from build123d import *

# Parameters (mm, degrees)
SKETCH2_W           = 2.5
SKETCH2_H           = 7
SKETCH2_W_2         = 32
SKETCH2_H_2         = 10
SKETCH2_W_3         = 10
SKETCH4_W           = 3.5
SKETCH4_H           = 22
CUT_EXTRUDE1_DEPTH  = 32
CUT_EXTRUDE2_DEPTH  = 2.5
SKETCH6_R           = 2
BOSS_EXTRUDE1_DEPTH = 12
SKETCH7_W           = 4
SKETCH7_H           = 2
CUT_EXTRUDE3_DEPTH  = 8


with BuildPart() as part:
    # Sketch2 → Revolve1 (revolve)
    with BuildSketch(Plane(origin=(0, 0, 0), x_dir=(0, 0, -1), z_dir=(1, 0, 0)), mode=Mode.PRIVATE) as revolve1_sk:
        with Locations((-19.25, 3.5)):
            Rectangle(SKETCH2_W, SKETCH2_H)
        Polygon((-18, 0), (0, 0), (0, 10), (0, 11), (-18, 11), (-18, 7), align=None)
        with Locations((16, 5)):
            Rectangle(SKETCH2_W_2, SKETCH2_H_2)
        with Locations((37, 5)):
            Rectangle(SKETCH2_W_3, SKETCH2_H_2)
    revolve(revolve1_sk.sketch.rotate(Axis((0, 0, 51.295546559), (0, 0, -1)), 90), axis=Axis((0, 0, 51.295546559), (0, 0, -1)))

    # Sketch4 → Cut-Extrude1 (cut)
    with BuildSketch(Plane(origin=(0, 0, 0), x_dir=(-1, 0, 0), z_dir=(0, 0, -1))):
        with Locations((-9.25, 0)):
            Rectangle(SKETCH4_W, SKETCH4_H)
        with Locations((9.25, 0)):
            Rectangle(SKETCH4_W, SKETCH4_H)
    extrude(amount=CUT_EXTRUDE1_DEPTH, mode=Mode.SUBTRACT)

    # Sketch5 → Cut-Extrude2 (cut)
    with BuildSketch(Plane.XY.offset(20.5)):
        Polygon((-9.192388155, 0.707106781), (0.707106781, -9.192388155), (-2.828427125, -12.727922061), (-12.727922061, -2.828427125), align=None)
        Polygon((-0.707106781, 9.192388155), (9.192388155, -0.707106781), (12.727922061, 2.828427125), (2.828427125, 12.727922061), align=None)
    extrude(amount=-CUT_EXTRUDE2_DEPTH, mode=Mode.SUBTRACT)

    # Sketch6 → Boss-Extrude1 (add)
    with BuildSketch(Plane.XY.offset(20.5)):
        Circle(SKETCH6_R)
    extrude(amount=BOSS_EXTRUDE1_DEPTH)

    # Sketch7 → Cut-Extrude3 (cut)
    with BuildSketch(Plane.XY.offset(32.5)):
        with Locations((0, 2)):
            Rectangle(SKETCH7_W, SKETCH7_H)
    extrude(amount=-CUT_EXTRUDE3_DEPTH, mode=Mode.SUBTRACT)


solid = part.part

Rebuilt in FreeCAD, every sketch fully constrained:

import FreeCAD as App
import Part
import Sketcher
Q = App.Units.Quantity

doc = App.newDocument("Part")
body = doc.addObject("PartDesign::Body", "Body")

sketch1 = body.newObject("Sketcher::SketchObject", "Sketch")
sketch1.AttachmentSupport = (doc.getObject("YZ_Plane"), [""])
sketch1.MapMode = "FlatFace"
sketch1.addGeometry([
    Part.LineSegment(App.Vector(7, 20.5, 0), App.Vector(0, 20.5, 0)),
    Part.LineSegment(App.Vector(0, 20.5, 0), App.Vector(0, -42, 0)),
    Part.LineSegment(App.Vector(0, -42, 0), App.Vector(10, -42, 0)),
    Part.LineSegment(App.Vector(10, -42, 0), App.Vector(10, 0, 0)),
    Part.LineSegment(App.Vector(10, 0, 0), App.Vector(11, 0, 0)),
    Part.LineSegment(App.Vector(11, 0, 0), App.Vector(11, 18, 0)),
    Part.LineSegment(App.Vector(11, 18, 0), App.Vector(7, 18, 0)),
    Part.LineSegment(App.Vector(7, 18, 0), App.Vector(7, 20.5, 0)),
], False)
sketch1.addConstraint([
    Sketcher.Constraint("Coincident", 0, 2, 1, 1),
    Sketcher.Constraint("Coincident", 1, 2, 2, 1),
    Sketcher.Constraint("Coincident", 2, 2, 3, 1),
    Sketcher.Constraint("Coincident", 3, 2, 4, 1),
    Sketcher.Constraint("Coincident", 4, 2, 5, 1),
    Sketcher.Constraint("Coincident", 5, 2, 6, 1),
    Sketcher.Constraint("Coincident", 6, 2, 7, 1),
    Sketcher.Constraint("Coincident", 7, 2, 0, 1),
    Sketcher.Constraint("Horizontal", 0),
    Sketcher.Constraint("Vertical", 1),
    Sketcher.Constraint("Horizontal", 2),
    Sketcher.Constraint("Vertical", 3),
    Sketcher.Constraint("Horizontal", 4),
    Sketcher.Constraint("Vertical", 5),
    Sketcher.Constraint("Horizontal", 6),
    Sketcher.Constraint("Vertical", 7),
    Sketcher.Constraint("PointOnObject", 0, 2, -2),
    Sketcher.Constraint("PointOnObject", 3, 2, -1),
    Sketcher.Constraint("DistanceX", 0, 2, 0, 1, Q("7 mm")),
    Sketcher.Constraint("DistanceX", 2, 1, 2, 2, Q("10 mm")),
    Sketcher.Constraint("DistanceX", 4, 1, 4, 2, Q("1 mm")),
    Sketcher.Constraint("DistanceY", 3, 1, 3, 2, Q("42 mm")),
    Sketcher.Constraint("DistanceY", 5, 1, 5, 2, Q("18 mm")),
    Sketcher.Constraint("DistanceY", 1, 2, 1, 1, Q("62.5 mm")),
])
revolution = body.newObject("PartDesign::Revolution", "Revolution")
revolution.Profile = sketch1
revolution.ReferenceAxis = (sketch1, ["V_Axis"])
revolution.Angle = 360

sketch2 = body.newObject("Sketcher::SketchObject", "Sketch001")
sketch2.AttachmentSupport = (doc.getObject("XY_Plane"), [""])
sketch2.MapMode = "FlatFace"
sketch2.addGeometry([
    Part.LineSegment(App.Vector(11, 11, 0), App.Vector(11, -11, 0)),
    Part.LineSegment(App.Vector(11, -11, 0), App.Vector(7.5, -11, 0)),
    Part.LineSegment(App.Vector(7.5, -11, 0), App.Vector(7.5, 11, 0)),
    Part.LineSegment(App.Vector(7.5, 11, 0), App.Vector(11, 11, 0)),
    Part.LineSegment(App.Vector(-7.5, 11, 0), App.Vector(-7.5, -11, 0)),
    Part.LineSegment(App.Vector(-7.5, -11, 0), App.Vector(-11, -11, 0)),
    Part.LineSegment(App.Vector(-11, -11, 0), App.Vector(-11, 11, 0)),
    Part.LineSegment(App.Vector(-11, 11, 0), App.Vector(-7.5, 11, 0)),
], False)
sketch2.addConstraint([
    Sketcher.Constraint("Coincident", 0, 2, 1, 1),
    Sketcher.Constraint("Coincident", 1, 2, 2, 1),
    Sketcher.Constraint("Coincident", 2, 2, 3, 1),
    Sketcher.Constraint("Coincident", 3, 2, 0, 1),
    Sketcher.Constraint("Coincident", 4, 2, 5, 1),
    Sketcher.Constraint("Coincident", 5, 2, 6, 1),
    Sketcher.Constraint("Coincident", 6, 2, 7, 1),
    Sketcher.Constraint("Coincident", 7, 2, 4, 1),
    Sketcher.Constraint("Vertical", 0),
    Sketcher.Constraint("Horizontal", 1),
    Sketcher.Constraint("Vertical", 2),
    Sketcher.Constraint("Horizontal", 3),
    Sketcher.Constraint("Vertical", 4),
    Sketcher.Constraint("Horizontal", 5),
    Sketcher.Constraint("Vertical", 6),
    Sketcher.Constraint("Horizontal", 7),
    Sketcher.Constraint("Symmetric", 2, 2, 4, 2, -1, 1),
    Sketcher.Constraint("Symmetric", 0, 2, 6, 2, -1, 1),
    Sketcher.Constraint("Horizontal", 1, 2, 4, 2),
    Sketcher.Constraint("DistanceY", 0, 2, 0, 1, Q("22 mm")),
    Sketcher.Constraint("DistanceX", 1, 2, 1, 1, Q("3.5 mm")),
    Sketcher.Constraint("DistanceX", -1, 1, 0, 2, Q("11 mm")),
])
pocket1 = body.newObject("PartDesign::Pocket", "Pocket")
pocket1.Profile = sketch2
pocket1.Length = 32

sketch3 = body.newObject("Sketcher::SketchObject", "Sketch002")
sketch3.AttachmentSupport = (doc.getObject("XY_Plane"), [""])
sketch3.MapMode = "FlatFace"
sketch3.AttachmentOffset = App.Placement(App.Vector(0, 0, 20.5), App.Rotation())
sketch3.addGeometry([
    Part.LineSegment(App.Vector(1, -9, 0), App.Vector(-9, 1, 0)),
    Part.LineSegment(App.Vector(-9, 1, 0), App.Vector(-13, -3, 0)),
    Part.LineSegment(App.Vector(-13, -3, 0), App.Vector(-3, -13, 0)),
    Part.LineSegment(App.Vector(-3, -13, 0), App.Vector(1, -9, 0)),
    Part.LineSegment(App.Vector(-1, 9, 0), App.Vector(9, -1, 0)),
    Part.LineSegment(App.Vector(9, -1, 0), App.Vector(13, 3, 0)),
    Part.LineSegment(App.Vector(13, 3, 0), App.Vector(3, 13, 0)),
    Part.LineSegment(App.Vector(3, 13, 0), App.Vector(-1, 9, 0)),
], False)
sketch3.addConstraint([
    Sketcher.Constraint("Coincident", 0, 2, 1, 1),
    Sketcher.Constraint("Coincident", 1, 2, 2, 1),
    Sketcher.Constraint("Coincident", 2, 2, 3, 1),
    Sketcher.Constraint("Coincident", 3, 2, 0, 1),
    Sketcher.Constraint("Coincident", 4, 2, 5, 1),
    Sketcher.Constraint("Coincident", 5, 2, 6, 1),
    Sketcher.Constraint("Coincident", 6, 2, 7, 1),
    Sketcher.Constraint("Coincident", 7, 2, 4, 1),
    Sketcher.Constraint("Symmetric", 0, 2, 4, 2, -1, 1),
    Sketcher.Constraint("Symmetric", 1, 2, 5, 2, -1, 1),
    Sketcher.Constraint("Symmetric", 2, 2, 6, 2, -1, 1),
    Sketcher.Constraint("Symmetric", 3, 2, 7, 2, -1, 1),
    Sketcher.Constraint("Perpendicular", 0, 1),
    Sketcher.Constraint("Perpendicular", 1, 2),
    Sketcher.Constraint("Perpendicular", 2, 3),
    Sketcher.Constraint("Angle", 0, Q("135 deg")),
    Sketcher.Constraint("Distance", 0, Q("14 mm")),
    Sketcher.Constraint("Distance", 1, Q("5 mm")),
    Sketcher.Constraint("DistanceX", 0, 2, -1, 1, Q("9.192388 mm")),
    Sketcher.Constraint("DistanceY", 3, 2, -1, 1, Q("9.192388 mm")),
])
pocket2 = body.newObject("PartDesign::Pocket", "Pocket001")
pocket2.Profile = sketch3
pocket2.Length = 2.5

sketch4 = body.newObject("Sketcher::SketchObject", "Sketch003")
sketch4.AttachmentSupport = (doc.getObject("XY_Plane"), [""])
sketch4.MapMode = "FlatFace"
sketch4.AttachmentOffset = App.Placement(App.Vector(0, 0, 20.5), App.Rotation())
sketch4.addGeometry(Part.Circle(App.Vector(0, 0, 0), App.Vector(0, 0, 1), 2), False)
sketch4.addConstraint([
    Sketcher.Constraint("Coincident", 0, 3, -1, 1),
    Sketcher.Constraint("Diameter", 0, Q("4 mm")),
])
pad1 = body.newObject("PartDesign::Pad", "Pad")
pad1.Profile = sketch4
pad1.Length = 12

sketch5 = body.newObject("Sketcher::SketchObject", "Sketch004")
sketch5.AttachmentSupport = (doc.getObject("XY_Plane"), [""])
sketch5.MapMode = "FlatFace"
sketch5.AttachmentOffset = App.Placement(App.Vector(0, 0, 32.5), App.Rotation())
sketch5.addGeometry([
    Part.LineSegment(App.Vector(-2, 3, 0), App.Vector(-2, 1, 0)),
    Part.LineSegment(App.Vector(-2, 1, 0), App.Vector(2, 1, 0)),
    Part.LineSegment(App.Vector(2, 1, 0), App.Vector(2, 3, 0)),
    Part.LineSegment(App.Vector(2, 3, 0), App.Vector(-2, 3, 0)),
], False)
sketch5.addConstraint([
    Sketcher.Constraint("Coincident", 0, 2, 1, 1),
    Sketcher.Constraint("Coincident", 1, 2, 2, 1),
    Sketcher.Constraint("Coincident", 2, 2, 3, 1),
    Sketcher.Constraint("Coincident", 3, 2, 0, 1),
    Sketcher.Constraint("Vertical", 0),
    Sketcher.Constraint("Horizontal", 1),
    Sketcher.Constraint("Vertical", 2),
    Sketcher.Constraint("Horizontal", 3),
    Sketcher.Constraint("DistanceX", 1, 1, 1, 2, Q("4 mm")),
    Sketcher.Constraint("DistanceY", 0, 2, 0, 1, Q("2 mm")),
    Sketcher.Constraint("DistanceX", 0, 2, -1, 1, Q("2 mm")),
    Sketcher.Constraint("DistanceY", -1, 1, 0, 2, Q("1 mm")),
])
pocket3 = body.newObject("PartDesign::Pocket", "Pocket002")
pocket3.Profile = sketch5
pocket3.Length = 8

doc.recompute()
